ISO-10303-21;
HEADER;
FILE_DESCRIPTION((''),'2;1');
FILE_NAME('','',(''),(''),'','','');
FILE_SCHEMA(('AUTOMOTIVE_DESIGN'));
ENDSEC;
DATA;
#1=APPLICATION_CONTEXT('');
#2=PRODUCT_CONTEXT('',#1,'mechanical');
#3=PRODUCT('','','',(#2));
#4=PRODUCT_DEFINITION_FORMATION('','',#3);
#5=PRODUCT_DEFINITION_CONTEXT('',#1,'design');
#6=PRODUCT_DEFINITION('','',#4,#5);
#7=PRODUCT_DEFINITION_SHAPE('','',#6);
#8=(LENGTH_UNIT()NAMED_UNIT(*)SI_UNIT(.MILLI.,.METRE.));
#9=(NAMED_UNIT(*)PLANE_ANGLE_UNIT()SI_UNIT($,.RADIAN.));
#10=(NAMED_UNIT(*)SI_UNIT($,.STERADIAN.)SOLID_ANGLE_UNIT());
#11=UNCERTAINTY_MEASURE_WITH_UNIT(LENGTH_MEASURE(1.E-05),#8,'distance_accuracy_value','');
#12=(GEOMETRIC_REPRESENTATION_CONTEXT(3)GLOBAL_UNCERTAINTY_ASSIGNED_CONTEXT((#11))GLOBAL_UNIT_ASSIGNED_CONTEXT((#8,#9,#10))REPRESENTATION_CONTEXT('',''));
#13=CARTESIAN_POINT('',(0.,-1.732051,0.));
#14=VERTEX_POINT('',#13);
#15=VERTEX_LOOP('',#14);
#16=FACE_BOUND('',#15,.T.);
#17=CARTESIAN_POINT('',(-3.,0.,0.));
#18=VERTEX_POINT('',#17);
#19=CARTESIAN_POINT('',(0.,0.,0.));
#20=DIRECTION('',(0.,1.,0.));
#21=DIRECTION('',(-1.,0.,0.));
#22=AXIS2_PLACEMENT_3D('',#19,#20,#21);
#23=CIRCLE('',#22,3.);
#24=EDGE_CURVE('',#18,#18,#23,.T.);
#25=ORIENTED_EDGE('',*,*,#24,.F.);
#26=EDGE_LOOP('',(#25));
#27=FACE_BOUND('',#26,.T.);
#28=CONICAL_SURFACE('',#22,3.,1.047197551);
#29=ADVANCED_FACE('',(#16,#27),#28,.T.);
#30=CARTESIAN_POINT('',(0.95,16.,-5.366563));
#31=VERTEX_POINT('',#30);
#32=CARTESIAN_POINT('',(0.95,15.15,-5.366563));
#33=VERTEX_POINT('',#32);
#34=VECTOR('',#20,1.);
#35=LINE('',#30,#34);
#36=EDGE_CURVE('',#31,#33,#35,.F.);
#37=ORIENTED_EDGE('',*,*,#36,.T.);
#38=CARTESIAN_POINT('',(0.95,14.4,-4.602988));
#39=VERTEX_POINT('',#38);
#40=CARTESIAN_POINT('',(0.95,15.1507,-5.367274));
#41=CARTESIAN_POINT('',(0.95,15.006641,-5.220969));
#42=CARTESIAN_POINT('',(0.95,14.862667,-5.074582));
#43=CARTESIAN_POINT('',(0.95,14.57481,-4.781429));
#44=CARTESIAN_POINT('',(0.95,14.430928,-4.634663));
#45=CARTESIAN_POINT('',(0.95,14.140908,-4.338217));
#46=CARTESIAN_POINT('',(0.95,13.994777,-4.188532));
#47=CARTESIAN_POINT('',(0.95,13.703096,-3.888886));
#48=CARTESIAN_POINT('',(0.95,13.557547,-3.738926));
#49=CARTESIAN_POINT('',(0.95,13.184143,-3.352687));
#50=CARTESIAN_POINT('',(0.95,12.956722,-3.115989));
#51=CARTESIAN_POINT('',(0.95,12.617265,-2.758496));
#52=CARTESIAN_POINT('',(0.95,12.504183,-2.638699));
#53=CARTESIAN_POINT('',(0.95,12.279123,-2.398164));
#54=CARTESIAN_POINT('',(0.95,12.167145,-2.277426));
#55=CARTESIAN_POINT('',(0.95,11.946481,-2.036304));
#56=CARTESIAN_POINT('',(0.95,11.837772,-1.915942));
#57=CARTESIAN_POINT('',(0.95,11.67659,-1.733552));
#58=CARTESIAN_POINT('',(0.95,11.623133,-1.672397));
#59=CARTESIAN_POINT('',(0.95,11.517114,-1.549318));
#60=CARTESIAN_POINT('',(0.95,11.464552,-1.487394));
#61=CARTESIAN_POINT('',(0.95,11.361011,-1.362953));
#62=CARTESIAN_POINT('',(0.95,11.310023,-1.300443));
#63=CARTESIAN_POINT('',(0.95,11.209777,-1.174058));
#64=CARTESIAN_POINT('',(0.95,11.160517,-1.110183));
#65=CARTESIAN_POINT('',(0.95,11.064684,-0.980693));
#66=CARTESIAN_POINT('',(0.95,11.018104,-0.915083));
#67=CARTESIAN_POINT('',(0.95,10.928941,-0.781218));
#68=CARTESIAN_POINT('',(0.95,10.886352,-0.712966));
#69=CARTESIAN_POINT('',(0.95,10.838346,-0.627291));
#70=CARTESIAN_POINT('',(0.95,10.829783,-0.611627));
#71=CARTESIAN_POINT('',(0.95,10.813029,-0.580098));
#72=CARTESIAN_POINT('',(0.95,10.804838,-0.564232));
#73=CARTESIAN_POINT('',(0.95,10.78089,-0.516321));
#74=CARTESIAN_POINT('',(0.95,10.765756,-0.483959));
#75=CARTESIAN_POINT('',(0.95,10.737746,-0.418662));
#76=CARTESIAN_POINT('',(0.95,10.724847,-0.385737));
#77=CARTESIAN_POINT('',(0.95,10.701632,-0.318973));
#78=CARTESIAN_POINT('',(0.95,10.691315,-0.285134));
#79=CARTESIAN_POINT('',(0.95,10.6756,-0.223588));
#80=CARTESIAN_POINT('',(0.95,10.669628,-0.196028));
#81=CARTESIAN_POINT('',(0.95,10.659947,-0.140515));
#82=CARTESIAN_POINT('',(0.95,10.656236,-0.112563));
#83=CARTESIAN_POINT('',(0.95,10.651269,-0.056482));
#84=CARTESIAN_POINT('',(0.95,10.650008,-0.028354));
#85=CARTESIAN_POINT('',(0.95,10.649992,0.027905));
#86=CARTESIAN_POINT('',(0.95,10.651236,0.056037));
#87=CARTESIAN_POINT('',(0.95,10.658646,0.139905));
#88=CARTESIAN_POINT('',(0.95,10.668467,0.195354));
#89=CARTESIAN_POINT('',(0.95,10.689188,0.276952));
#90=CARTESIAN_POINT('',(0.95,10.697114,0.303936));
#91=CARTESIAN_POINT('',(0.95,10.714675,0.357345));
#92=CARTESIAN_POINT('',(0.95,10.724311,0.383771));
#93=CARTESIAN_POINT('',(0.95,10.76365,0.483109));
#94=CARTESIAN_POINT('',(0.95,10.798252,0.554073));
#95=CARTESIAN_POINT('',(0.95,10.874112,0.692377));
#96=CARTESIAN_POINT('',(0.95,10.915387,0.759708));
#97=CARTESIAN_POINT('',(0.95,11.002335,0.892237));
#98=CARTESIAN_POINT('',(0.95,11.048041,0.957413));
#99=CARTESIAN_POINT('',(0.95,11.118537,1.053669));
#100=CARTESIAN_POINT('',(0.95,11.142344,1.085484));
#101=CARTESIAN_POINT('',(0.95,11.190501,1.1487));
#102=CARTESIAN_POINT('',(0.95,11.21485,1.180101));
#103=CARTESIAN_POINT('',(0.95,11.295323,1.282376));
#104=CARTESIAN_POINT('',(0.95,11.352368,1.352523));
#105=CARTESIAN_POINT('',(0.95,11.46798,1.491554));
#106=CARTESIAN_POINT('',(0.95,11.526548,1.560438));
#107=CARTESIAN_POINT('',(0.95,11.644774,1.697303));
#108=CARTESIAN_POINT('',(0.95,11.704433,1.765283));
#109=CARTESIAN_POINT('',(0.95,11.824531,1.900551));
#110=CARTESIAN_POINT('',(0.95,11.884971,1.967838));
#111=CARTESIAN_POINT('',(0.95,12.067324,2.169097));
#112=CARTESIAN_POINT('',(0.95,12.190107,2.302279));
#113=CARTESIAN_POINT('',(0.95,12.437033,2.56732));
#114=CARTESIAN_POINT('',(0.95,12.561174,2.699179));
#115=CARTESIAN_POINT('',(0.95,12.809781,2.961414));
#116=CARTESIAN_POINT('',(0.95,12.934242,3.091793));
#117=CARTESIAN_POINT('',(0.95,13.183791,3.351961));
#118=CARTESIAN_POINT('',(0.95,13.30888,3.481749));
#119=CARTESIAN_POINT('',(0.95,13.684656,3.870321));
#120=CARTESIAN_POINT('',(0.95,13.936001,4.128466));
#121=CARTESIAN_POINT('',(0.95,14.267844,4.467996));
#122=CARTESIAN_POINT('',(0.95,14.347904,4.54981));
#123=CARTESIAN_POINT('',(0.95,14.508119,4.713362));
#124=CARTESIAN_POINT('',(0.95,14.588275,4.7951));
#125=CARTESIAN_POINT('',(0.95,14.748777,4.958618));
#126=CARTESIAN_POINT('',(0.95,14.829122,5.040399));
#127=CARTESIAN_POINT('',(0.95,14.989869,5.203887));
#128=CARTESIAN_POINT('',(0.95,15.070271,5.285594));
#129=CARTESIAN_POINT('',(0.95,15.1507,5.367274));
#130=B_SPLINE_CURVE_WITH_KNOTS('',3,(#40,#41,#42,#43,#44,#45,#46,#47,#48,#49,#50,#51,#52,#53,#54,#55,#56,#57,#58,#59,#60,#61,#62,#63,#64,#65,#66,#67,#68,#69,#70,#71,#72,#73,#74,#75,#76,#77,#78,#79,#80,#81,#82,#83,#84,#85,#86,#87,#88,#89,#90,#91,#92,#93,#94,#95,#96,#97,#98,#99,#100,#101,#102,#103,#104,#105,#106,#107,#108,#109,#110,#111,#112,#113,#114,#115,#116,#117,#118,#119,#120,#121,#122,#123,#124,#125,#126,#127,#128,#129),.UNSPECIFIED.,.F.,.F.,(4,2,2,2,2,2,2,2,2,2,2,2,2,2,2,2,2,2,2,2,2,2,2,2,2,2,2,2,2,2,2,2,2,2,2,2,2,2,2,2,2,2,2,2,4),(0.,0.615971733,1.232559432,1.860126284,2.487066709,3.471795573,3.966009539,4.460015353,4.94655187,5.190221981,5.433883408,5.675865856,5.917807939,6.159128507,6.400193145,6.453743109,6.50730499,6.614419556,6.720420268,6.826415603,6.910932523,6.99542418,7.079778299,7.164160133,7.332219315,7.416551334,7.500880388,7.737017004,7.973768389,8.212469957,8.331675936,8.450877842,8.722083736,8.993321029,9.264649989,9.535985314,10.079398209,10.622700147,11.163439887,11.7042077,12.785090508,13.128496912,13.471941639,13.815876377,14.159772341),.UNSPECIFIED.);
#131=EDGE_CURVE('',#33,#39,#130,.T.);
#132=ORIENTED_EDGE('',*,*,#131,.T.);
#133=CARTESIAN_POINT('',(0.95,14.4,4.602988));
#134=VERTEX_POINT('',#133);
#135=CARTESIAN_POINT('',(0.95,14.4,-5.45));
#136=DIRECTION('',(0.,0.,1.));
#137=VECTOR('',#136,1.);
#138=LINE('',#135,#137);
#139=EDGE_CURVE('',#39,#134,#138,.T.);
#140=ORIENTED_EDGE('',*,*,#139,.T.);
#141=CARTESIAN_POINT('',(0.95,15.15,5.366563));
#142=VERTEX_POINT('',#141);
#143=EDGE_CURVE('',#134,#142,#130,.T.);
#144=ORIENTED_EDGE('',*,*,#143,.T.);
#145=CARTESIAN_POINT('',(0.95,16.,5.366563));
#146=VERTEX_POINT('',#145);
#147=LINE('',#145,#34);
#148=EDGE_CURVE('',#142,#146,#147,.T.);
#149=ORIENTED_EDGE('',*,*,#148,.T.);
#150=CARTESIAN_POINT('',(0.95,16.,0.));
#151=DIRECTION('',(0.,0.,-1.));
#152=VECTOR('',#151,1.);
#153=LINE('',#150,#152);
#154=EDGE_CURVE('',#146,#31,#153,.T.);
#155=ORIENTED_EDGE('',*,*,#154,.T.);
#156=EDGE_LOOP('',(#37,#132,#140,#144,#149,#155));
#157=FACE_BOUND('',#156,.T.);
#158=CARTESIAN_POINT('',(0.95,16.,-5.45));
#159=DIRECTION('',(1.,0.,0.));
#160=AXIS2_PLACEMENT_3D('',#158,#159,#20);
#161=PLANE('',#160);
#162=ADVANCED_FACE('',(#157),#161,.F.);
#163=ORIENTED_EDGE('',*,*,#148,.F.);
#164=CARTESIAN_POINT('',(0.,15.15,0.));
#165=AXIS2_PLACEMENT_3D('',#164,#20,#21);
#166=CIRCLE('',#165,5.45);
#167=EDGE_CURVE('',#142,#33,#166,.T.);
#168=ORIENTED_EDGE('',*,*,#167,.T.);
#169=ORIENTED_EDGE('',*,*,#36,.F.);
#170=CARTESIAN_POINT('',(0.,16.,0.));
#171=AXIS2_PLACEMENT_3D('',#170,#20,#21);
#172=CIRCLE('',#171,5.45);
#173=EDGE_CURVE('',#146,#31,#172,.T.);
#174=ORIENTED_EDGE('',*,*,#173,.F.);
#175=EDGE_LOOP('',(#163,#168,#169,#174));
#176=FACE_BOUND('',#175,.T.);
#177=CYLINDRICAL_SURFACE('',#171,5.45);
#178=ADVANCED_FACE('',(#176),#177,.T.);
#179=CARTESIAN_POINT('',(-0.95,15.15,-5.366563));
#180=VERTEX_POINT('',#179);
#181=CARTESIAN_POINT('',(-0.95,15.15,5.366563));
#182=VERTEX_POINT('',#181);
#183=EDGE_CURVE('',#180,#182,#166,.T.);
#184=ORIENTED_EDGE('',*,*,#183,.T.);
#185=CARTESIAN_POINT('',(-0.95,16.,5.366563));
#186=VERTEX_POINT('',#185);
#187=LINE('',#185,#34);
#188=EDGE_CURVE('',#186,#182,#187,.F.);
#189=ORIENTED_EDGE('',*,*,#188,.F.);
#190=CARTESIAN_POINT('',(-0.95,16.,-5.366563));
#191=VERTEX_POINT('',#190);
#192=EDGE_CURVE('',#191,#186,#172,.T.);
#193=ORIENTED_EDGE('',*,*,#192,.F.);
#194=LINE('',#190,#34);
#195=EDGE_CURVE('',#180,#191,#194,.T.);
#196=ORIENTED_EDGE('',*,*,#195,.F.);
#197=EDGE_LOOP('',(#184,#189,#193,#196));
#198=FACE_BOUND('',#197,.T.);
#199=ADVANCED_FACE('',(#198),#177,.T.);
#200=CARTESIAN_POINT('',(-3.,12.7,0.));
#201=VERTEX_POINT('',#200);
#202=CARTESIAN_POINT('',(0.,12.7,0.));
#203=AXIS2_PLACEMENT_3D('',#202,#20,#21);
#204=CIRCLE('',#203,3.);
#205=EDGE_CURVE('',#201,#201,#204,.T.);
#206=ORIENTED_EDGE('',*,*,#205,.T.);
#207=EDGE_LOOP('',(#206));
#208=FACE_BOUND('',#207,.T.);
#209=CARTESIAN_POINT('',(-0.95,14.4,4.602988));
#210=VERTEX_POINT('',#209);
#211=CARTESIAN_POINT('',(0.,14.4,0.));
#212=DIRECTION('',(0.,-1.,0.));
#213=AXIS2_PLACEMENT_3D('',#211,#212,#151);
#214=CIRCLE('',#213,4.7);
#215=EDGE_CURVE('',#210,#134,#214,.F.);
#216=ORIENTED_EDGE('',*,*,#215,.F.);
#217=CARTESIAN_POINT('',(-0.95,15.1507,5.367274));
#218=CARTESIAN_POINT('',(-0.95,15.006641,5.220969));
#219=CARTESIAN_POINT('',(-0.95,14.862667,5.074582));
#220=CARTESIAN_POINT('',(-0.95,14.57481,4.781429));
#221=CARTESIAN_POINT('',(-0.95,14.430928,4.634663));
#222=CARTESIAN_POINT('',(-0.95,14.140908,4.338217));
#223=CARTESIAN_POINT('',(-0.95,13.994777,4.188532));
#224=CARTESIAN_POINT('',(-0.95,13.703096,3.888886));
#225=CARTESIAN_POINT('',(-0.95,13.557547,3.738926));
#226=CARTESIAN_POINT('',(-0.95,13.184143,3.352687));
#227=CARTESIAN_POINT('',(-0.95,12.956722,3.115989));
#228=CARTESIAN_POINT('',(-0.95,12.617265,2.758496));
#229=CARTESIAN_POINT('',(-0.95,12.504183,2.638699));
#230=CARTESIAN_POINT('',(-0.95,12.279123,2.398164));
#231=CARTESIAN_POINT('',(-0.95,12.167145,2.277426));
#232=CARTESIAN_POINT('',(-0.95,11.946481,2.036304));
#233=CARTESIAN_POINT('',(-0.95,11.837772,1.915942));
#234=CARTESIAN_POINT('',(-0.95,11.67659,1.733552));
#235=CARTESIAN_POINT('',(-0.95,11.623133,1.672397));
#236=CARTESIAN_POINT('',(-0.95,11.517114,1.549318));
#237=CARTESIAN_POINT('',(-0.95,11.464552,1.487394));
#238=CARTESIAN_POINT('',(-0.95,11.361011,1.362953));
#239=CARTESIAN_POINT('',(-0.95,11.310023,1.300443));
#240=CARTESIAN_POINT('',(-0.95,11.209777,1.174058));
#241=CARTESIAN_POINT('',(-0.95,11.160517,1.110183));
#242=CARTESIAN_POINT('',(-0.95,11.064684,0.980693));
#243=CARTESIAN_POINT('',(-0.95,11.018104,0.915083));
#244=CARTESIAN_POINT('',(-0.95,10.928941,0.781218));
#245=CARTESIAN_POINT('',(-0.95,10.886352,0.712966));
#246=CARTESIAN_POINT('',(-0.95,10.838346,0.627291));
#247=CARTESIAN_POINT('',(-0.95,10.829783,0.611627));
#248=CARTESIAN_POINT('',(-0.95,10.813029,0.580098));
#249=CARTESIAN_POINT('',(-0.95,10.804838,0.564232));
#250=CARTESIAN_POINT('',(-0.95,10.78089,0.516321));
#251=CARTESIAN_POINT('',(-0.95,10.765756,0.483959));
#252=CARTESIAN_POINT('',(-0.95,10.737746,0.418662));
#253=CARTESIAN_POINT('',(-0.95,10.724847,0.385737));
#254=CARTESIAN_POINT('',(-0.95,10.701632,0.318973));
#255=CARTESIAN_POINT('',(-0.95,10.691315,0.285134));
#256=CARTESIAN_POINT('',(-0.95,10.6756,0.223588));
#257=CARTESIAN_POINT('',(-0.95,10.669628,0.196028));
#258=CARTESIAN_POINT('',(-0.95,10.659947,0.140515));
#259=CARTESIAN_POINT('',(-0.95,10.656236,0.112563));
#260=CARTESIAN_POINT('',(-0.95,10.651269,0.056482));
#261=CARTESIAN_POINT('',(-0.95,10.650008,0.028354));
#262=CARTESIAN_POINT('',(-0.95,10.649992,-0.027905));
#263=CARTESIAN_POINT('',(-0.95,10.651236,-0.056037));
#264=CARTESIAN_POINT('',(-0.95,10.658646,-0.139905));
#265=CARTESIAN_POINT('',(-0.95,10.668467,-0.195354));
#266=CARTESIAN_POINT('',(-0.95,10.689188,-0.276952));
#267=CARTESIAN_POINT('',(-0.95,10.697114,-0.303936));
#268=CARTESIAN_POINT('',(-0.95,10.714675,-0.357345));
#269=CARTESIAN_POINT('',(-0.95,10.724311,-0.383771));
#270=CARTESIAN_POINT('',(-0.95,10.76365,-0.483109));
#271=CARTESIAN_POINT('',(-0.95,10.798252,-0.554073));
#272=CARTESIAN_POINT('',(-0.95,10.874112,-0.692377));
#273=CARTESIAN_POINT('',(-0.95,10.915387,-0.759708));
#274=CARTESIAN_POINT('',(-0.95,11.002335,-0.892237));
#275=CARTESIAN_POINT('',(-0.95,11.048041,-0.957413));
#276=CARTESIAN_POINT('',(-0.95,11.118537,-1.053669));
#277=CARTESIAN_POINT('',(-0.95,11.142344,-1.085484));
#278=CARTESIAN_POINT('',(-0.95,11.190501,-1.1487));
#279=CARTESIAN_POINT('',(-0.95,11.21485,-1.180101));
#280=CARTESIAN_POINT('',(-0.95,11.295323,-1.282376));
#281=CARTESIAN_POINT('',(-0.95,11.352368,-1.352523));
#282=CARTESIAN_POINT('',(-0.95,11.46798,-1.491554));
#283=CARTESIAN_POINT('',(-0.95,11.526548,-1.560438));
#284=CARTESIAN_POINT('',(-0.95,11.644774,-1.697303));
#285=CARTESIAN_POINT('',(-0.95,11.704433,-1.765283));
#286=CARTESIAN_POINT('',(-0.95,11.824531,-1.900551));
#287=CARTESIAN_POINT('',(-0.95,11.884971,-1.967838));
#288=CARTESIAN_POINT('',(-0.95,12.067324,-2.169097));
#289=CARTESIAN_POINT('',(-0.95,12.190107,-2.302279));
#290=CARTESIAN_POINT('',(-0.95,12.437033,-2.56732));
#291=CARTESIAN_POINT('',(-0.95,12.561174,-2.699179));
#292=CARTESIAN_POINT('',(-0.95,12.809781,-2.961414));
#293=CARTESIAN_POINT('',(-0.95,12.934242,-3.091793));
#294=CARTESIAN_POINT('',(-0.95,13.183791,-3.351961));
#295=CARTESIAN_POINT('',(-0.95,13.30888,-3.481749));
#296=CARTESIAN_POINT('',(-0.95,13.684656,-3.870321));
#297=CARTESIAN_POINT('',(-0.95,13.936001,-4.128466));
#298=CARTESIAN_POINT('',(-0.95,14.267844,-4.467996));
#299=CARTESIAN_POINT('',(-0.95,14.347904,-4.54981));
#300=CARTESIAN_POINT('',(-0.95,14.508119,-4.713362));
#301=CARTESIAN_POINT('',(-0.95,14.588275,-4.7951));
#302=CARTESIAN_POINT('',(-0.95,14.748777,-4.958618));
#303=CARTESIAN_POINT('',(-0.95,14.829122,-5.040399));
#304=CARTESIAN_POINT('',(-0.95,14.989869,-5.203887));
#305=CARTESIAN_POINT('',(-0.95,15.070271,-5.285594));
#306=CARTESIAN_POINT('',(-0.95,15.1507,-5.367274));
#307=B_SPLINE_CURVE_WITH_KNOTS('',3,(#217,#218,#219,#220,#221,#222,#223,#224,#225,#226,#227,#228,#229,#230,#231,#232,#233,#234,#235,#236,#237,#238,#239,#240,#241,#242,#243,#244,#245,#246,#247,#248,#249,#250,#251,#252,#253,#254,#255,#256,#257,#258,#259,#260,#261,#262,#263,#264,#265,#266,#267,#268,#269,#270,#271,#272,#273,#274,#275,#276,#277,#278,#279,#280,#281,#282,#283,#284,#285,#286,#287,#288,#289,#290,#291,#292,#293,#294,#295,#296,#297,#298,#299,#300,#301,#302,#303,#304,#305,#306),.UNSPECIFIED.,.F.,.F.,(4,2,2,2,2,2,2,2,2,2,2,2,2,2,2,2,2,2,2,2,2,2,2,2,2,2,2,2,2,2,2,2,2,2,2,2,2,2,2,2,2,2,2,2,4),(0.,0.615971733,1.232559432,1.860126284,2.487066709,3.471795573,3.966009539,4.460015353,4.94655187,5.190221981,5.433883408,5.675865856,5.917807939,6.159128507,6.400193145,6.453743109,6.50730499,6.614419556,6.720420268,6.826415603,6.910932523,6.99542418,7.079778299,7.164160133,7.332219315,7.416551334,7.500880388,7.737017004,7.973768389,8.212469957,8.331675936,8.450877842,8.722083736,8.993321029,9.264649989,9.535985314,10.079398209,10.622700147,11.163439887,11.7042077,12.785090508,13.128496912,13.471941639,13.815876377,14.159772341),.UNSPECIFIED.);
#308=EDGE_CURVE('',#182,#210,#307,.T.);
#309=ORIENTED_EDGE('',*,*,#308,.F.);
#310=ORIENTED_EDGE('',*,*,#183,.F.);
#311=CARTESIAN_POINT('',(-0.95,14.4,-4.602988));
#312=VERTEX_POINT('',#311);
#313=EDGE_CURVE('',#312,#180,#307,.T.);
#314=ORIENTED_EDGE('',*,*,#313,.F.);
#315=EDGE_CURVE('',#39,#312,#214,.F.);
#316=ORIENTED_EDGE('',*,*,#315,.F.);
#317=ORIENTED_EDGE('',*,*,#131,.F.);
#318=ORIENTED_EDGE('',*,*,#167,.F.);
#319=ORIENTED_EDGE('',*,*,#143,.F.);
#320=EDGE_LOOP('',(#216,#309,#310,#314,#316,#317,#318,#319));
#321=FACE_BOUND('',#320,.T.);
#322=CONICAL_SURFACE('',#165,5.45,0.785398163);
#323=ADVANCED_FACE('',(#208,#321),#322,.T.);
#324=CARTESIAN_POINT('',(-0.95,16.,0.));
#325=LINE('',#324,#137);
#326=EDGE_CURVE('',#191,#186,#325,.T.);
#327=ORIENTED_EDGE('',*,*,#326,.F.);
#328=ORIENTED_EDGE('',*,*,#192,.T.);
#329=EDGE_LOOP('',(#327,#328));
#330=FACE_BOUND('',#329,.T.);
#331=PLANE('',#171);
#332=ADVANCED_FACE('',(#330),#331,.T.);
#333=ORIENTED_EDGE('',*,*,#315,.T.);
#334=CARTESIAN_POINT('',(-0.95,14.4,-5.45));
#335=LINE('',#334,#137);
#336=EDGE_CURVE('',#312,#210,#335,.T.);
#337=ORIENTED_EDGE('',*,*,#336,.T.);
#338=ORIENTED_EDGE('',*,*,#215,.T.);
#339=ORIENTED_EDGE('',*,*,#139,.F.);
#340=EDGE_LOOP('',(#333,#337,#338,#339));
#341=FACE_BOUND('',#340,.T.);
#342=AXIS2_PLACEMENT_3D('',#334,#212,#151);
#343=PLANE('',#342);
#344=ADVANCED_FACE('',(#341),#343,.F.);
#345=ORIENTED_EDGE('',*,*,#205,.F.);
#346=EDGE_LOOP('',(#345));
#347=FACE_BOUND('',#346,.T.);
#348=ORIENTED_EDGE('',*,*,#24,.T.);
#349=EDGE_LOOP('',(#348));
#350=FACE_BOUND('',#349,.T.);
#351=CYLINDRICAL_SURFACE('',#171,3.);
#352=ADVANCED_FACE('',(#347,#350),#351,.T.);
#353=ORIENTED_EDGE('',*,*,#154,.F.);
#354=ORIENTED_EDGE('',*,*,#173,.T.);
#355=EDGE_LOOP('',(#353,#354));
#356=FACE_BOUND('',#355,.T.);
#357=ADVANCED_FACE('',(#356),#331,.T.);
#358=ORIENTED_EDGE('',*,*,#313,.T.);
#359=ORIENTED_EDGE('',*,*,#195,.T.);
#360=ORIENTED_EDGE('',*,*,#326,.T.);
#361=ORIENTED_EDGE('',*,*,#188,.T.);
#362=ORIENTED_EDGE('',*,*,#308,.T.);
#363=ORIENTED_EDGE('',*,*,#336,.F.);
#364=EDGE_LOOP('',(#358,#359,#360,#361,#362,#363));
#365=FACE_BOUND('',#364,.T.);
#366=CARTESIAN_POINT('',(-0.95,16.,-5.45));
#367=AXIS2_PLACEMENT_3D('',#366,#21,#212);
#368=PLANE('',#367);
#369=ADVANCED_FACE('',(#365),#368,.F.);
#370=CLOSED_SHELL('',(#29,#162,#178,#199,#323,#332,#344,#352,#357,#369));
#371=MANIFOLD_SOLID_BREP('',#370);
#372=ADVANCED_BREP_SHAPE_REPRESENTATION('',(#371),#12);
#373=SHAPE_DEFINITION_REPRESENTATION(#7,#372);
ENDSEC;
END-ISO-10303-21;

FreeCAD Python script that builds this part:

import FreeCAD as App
import Part
import Sketcher

V = App.Vector
Q = App.Units.Quantity

doc = App.newDocument("Part")
params = doc.addObject("Spreadsheet::Sheet", "Params")
for row, (alias, value) in enumerate([
    ("sketch1_height", "12.7 mm"),
    ("sketch1_width", "5.45 mm"),
    ("revolution_angle", "360 deg"),
    ("sketch2_width", "1.9 mm"),
    ("sketch2_height", "1.6 mm"),
], start=1):
    params.set(f"A{row}", alias)
    params.set(f"B{row}", "=" + value)
    params.setAlias(f"B{row}", alias)

body = doc.addObject("PartDesign::Body", "Body")

# Sketch on XY plane
sketch1 = body.newObject("Sketcher::SketchObject", "Sketch")
sketch1.AttachmentSupport = (doc.getObject("XY_Plane"), [""])
sketch1.MapMode = "FlatFace"
sketch1.addGeometry([
    Part.LineSegment(V(0, 16, 0), V(-5.5, 16, 0)),  # 0
    Part.LineSegment(V(-5.5, 16, 0), V(-5.5, 15.2, 0)),  # 1
    Part.LineSegment(V(-5.5, 15.2, 0), V(-3, 12.7, 0)),  # 2
    Part.LineSegment(V(-3, 12.7, 0), V(-3, 0, 0)),  # 3
    Part.LineSegment(V(-3, 0, 0), V(0, -1.7, 0)),  # 4
    Part.LineSegment(V(0, -1.7, 0), V(0, 16, 0)),  # 5
], False)
sketch1.addConstraint([
    Sketcher.Constraint("Coincident", 0, 2, 1, 1),
    Sketcher.Constraint("Coincident", 1, 2, 2, 1),
    Sketcher.Constraint("Coincident", 2, 2, 3, 1),
    Sketcher.Constraint("Coincident", 3, 2, 4, 1),
    Sketcher.Constraint("Coincident", 4, 2, 5, 1),
    Sketcher.Constraint("Coincident", 5, 2, 0, 1),
    Sketcher.Constraint("Horizontal", 0),
    Sketcher.Constraint("Vertical", 1),
    Sketcher.Constraint("Vertical", 3),
    Sketcher.Constraint("Vertical", 5),
    Sketcher.Constraint("PointOnObject", 3, 2, -1),
    Sketcher.Constraint("PointOnObject", 4, 2, -2),
    Sketcher.Constraint("Angle", 2, Q("-45 deg")),
    Sketcher.Constraint("Angle", 4, Q("-30 deg")),
    Sketcher.Constraint("DistanceY", 3, 2, 3, 1, Q("12.7 mm")),
    Sketcher.Constraint("DistanceY", -1, 1, 0, 2, Q("16 mm")),
    Sketcher.Constraint("DistanceX", 2, 2, -1, 1, Q("3 mm")),
    Sketcher.Constraint("DistanceX", 0, 2, 0, 1, Q("5.45 mm")),
])
sketch1.setExpression("Constraints[14]", "Params.sketch1_height")
sketch1.setExpression("Constraints[17]", "Params.sketch1_width")
revolution = body.newObject("PartDesign::Revolution", "Revolution")
revolution.Profile = sketch1
revolution.ReferenceAxis = (sketch1, ["V_Axis"])
revolution.setExpression("Angle", "Params.revolution_angle")

# Sketch on XY plane
sketch2 = body.newObject("Sketcher::SketchObject", "Sketch001")
sketch2.AttachmentSupport = (doc.getObject("XY_Plane"), [""])
sketch2.MapMode = "FlatFace"
sketch2.addGeometry([
    Part.LineSegment(V(-0.9, 16, 0), V(-0.9, 14.4, 0)),
    Part.LineSegment(V(-0.9, 14.4, 0), V(0.9, 14.4, 0)),
    Part.LineSegment(V(0.9, 14.4, 0), V(0.9, 16, 0)),
    Part.LineSegment(V(0.9, 16, 0), V(-0.9, 16, 0)),
], False)
sketch2.addConstraint([
    Sketcher.Constraint("Coincident", 0, 2, 1, 1),
    Sketcher.Constraint("Coincident", 1, 2, 2, 1),
    Sketcher.Constraint("Coincident", 2, 2, 3, 1),
    Sketcher.Constraint("Coincident", 3, 2, 0, 1),
    Sketcher.Constraint("Vertical", 0),
    Sketcher.Constraint("Horizontal", 1),
    Sketcher.Constraint("Vertical", 2),
    Sketcher.Constraint("Horizontal", 3),
    Sketcher.Constraint("DistanceX", 1, 1, 1, 2, Q("1.9 mm")),
    Sketcher.Constraint("DistanceY", 0, 2, 0, 1, Q("1.6 mm")),
    Sketcher.Constraint("DistanceY", -1, 1, 2, 2, Q("16 mm")),
    Sketcher.Constraint("DistanceX", 0, 2, -1, 1, Q("0.95 mm")),
])
sketch2.setExpression("Constraints[8]", "Params.sketch2_width")
sketch2.setExpression("Constraints[9]", "Params.sketch2_height")
pocket1 = body.newObject("PartDesign::Pocket", "Pocket")
pocket1.Profile = sketch2
pocket1.Type = "ThroughAll"
pocket1.Midplane = True

doc.recompute()
